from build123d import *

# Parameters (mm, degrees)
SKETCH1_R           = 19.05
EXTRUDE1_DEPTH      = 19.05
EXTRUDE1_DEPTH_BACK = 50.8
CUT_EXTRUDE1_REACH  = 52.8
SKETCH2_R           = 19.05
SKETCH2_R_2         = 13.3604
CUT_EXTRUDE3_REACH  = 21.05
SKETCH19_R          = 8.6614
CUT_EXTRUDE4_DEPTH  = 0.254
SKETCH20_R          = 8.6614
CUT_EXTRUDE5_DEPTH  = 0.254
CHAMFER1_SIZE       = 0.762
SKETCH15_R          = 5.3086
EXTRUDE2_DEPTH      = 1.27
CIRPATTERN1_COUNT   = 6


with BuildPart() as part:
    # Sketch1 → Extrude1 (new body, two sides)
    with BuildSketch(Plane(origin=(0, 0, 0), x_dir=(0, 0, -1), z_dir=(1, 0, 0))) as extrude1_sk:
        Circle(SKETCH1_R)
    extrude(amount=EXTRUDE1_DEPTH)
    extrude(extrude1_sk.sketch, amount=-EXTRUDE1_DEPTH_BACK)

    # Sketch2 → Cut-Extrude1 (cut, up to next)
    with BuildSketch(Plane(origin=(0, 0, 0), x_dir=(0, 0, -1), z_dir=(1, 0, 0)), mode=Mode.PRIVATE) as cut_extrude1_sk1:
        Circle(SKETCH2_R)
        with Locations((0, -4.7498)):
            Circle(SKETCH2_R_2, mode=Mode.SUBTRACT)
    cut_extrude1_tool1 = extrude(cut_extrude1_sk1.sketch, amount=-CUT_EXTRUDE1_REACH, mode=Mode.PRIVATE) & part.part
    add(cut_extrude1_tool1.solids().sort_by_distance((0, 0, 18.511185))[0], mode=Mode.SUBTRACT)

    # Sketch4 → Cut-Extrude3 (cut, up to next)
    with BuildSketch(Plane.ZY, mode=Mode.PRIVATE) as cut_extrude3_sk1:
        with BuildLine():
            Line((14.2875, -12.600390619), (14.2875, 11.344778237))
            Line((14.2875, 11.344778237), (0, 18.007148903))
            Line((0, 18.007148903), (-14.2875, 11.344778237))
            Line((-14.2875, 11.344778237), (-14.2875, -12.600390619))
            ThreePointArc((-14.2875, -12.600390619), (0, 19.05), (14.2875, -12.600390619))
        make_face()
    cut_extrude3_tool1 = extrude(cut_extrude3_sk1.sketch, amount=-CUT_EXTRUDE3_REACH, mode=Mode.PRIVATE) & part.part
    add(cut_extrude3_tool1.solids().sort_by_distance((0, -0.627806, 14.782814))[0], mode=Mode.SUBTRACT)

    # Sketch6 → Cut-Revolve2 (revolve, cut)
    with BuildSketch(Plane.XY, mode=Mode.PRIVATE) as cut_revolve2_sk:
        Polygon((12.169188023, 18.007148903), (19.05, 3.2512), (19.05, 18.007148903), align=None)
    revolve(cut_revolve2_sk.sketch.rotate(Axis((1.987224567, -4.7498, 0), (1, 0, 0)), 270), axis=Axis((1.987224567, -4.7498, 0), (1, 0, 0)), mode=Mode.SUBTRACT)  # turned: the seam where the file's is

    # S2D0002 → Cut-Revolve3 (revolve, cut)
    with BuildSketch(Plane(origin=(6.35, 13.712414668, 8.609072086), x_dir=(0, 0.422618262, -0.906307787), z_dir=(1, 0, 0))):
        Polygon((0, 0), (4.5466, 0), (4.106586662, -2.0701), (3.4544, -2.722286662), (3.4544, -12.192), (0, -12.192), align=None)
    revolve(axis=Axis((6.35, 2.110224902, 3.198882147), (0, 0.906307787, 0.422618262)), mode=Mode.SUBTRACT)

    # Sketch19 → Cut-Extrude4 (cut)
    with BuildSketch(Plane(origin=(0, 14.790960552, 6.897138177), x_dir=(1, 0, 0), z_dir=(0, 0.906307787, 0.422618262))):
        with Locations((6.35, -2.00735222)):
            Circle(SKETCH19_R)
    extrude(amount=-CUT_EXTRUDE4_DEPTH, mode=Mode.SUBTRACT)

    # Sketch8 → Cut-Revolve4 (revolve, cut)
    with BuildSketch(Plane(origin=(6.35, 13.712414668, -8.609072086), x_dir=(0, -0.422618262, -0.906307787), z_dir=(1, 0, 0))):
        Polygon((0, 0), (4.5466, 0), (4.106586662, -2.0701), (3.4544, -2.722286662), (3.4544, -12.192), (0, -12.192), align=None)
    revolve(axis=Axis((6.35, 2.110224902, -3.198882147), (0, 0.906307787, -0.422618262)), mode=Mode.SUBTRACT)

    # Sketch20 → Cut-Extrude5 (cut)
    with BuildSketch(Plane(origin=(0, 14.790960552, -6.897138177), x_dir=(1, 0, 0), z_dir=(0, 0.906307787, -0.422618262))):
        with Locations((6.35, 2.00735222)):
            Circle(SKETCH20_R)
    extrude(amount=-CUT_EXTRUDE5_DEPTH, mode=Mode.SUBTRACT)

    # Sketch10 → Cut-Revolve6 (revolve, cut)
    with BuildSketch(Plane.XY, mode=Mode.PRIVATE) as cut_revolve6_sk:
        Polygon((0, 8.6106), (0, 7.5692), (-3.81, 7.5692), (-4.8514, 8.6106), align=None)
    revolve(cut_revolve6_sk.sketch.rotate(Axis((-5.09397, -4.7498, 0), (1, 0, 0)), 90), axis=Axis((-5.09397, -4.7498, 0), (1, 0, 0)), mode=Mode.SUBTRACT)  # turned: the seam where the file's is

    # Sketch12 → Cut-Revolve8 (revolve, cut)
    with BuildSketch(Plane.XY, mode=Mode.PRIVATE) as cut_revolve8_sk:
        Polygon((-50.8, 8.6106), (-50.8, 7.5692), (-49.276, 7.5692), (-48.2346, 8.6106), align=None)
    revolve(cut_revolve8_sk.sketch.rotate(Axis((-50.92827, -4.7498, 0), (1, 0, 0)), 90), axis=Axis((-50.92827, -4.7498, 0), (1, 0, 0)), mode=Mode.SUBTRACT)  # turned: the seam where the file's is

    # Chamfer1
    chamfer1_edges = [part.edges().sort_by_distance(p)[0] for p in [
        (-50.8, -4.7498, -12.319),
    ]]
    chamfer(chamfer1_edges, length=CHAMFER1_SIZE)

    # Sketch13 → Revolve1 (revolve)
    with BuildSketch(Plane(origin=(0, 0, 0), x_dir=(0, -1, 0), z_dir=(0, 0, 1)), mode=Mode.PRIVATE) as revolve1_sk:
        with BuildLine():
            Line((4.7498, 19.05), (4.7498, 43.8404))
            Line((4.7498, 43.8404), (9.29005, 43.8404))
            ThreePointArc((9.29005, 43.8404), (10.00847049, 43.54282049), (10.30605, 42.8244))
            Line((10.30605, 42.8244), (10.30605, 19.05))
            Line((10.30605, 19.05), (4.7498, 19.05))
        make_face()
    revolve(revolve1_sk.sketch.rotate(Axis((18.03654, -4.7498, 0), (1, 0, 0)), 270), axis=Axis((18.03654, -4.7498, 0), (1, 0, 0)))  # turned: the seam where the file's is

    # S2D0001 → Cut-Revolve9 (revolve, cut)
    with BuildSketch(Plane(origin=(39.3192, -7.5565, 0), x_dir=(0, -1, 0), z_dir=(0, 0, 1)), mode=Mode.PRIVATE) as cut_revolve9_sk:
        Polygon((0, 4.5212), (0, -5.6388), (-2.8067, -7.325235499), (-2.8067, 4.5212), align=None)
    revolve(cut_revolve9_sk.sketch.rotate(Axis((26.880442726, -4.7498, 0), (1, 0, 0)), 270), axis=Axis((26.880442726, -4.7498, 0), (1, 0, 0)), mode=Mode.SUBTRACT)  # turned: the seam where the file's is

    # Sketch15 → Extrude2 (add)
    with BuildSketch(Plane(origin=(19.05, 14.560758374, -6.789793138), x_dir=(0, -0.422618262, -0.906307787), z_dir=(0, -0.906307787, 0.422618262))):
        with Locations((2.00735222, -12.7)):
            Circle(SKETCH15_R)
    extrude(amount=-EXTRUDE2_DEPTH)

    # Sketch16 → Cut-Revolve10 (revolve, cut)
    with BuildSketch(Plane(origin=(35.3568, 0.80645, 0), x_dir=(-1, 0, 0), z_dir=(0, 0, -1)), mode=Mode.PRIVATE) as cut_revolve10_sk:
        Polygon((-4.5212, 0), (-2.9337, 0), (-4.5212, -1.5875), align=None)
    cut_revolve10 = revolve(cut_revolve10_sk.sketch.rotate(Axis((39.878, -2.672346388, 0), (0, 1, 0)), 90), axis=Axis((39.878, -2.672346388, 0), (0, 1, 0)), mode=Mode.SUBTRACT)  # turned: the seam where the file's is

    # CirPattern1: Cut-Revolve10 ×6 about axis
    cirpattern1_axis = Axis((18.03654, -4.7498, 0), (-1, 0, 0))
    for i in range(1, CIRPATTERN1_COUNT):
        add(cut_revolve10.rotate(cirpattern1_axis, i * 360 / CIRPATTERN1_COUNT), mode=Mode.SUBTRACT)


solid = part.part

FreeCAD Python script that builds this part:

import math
import FreeCAD as App
import Part
import Sketcher
Q = App.Units.Quantity


def edges_at(feature, points):
    """Names of the edges that pass closest to the given points."""
    edges = feature.Shape.Edges
    near = lambda p: min(range(len(edges)), key=lambda i: edges[i].distToShape(Part.Vertex(*p))[0])
    return sorted({f"Edge{near(p) + 1}" for p in points})


def add_polygon(sketch, points):
    """Adds a closed chain of lines whose ends are joined by coincident constraints."""
    first, n = sketch.GeometryCount, len(points)
    for a, b in zip(points, points[1:] + points[:1]):
        sketch.addGeometry(Part.LineSegment(App.Vector(*a, 0), App.Vector(*b, 0)), False)
    for i in range(n):
        sketch.addConstraint(Sketcher.Constraint("Coincident", first + i, 2, first + (i + 1) % n, 1))

doc = App.newDocument("Part")
params = doc.addObject("Spreadsheet::Sheet", "Params")
for row, (alias, value) in enumerate([
    ("sketch1_diameter", "1.5 in"),
    ("pad1_length", "0.75 in"),
    ("pad1_length2", "2 in"),
    ("sketch2_diameter", "1.5 in"),
    ("sketch2_diameter2", "1.052 in"),
    ("sketch3_radius", "0.75 in"),
    ("groove_angle", "360 deg"),
    ("sketch5_length", "0.48 in"),
    ("sketch5_length2", "0.179 in"),
    ("sketch5_length3", "0.136 in"),
    ("groove2_angle", "360 deg"),
    ("sketch6_diameter", "0.682 in"),
    ("pocket3_length", "0.01 in"),
    ("sketch7_length", "0.48 in"),
    ("sketch7_length2", "0.179 in"),
    ("sketch7_length3", "0.136 in"),
    ("groove3_angle", "360 deg"),
    ("sketch8_diameter", "0.682 in"),
    ("pocket4_length", "0.01 in"),
    ("sketch9_width", "0.15 in"),
    ("sketch9_width2", "0.191 in"),
    ("groove4_angle", "360 deg"),
    ("sketch10_width", "0.06 in"),
    ("sketch10_width2", "0.101 in"),
    ("groove5_angle", "360 deg"),
    ("chamfer_size", "0.03 in"),
    ("sketch11_radius", "0.04 in"),
    ("sketch11_width", "0.976 in"),
    ("sketch11_height", "0.21875 in"),
    ("revolution_angle", "360 deg"),
    ("sketch12_width", "0.4 in"),
    ("groove6_angle", "360 deg"),
    ("sketch13_diameter", "0.418 in"),
    ("pad2_length", "0.05 in"),
    ("sketch14_width", "0.0625 in"),
    ("groove7_angle", "360 deg"),
], start=1):
    params.set(f"A{row}", alias)
    params.set(f"B{row}", "=" + value)
    params.setAlias(f"B{row}", alias)

body = doc.addObject("PartDesign::Body", "Body")

# Sketch on YZ plane
sketch1 = body.newObject("Sketcher::SketchObject", "Sketch")
sketch1.AttachmentSupport = (doc.getObject("YZ_Plane"), [""])
sketch1.MapMode = "FlatFace"
sketch1.addGeometry(Part.Circle(App.Vector(0, 0, 0), App.Vector(0, 0, 1), 19), False)
sketch1.addConstraint([
    Sketcher.Constraint("Coincident", 0, 3, -1, 1),
    Sketcher.Constraint("Diameter", 0, Q("1.5 in")),
])
sketch1.setExpression("Constraints[1]", "Params.sketch1_diameter")
pad1 = body.newObject("PartDesign::Pad", "Pad")
pad1.Profile = sketch1
pad1.Type = "TwoLengths"
pad1.setExpression("Length", "Params.pad1_length")
pad1.setExpression("Length2", "Params.pad1_length2")

# Sketch on YZ plane
sketch2 = body.newObject("Sketcher::SketchObject", "Sketch001")
sketch2.AttachmentSupport = (doc.getObject("YZ_Plane"), [""])
sketch2.MapMode = "FlatFace"
sketch2.addGeometry([
    Part.Circle(App.Vector(0, 0, 0), App.Vector(0, 0, 1), 19),
    Part.Circle(App.Vector(-5, 0, 0), App.Vector(0, 0, 1), 13),
], False)
sketch2.addConstraint([
    Sketcher.Constraint("Coincident", 0, 3, -1, 1),
    Sketcher.Constraint("PointOnObject", 1, 3, -1),
    Sketcher.Constraint("Diameter", 0, Q("1.5 in")),
    Sketcher.Constraint("Diameter", 1, Q("1.052 in")),
    Sketcher.Constraint("DistanceX", 1, 3, -1, 1, Q("0.187 in")),
])
sketch2.setExpression("Constraints[2]", "Params.sketch2_diameter")
sketch2.setExpression("Constraints[3]", "Params.sketch2_diameter2")
pocket1 = body.newObject("PartDesign::Pocket", "Pocket")
pocket1.Profile = sketch2
pocket1.Type = "UpToFirst"

# Sketch on YZ plane
sketch3 = body.newObject("Sketcher::SketchObject", "Sketch002")
sketch3.AttachmentSupport = (doc.getObject("YZ_Plane"), [""])
sketch3.MapMode = "FlatFace"
sketch3.addGeometry([
    Part.LineSegment(App.Vector(11, 14, 0), App.Vector(-13, 14, 0)),  # 0
    Part.ArcOfCircle(Part.Circle(App.Vector(0, 0, 0), App.Vector(0, 0, 1), 19), math.radians(-131), math.radians(131)),  # 1
    Part.LineSegment(App.Vector(-13, -14, 0), App.Vector(11, -14, 0)),  # 2
    Part.LineSegment(App.Vector(11, -14, 0), App.Vector(18, 0, 0)),  # 3
    Part.LineSegment(App.Vector(18, 0, 0), App.Vector(11, 14, 0)),  # 4
], False)
sketch3.addConstraint([
    Sketcher.Constraint("Coincident", 0, 2, 1, 2),
    Sketcher.Constraint("Coincident", 1, 1, 2, 1),
    Sketcher.Constraint("Coincident", 2, 2, 3, 1),
    Sketcher.Constraint("Coincident", 3, 2, 4, 1),
    Sketcher.Constraint("Coincident", 4, 2, 0, 1),
    Sketcher.Constraint("Horizontal", 0),
    Sketcher.Constraint("Horizontal", 2),
    Sketcher.Constraint("Coincident", 1, 3, -1, 1),
    Sketcher.Constraint("Symmetric", 2, 2, 4, 2, -1),
    Sketcher.Constraint("PointOnObject", 3, 2, -1),
    Sketcher.Constraint("Radius", 1, Q("0.75 in")),
    Sketcher.Constraint("Angle", 3, Q("65 deg")),
    Sketcher.Constraint("DistanceY", -1, 1, 0, 2, Q("0.5625 in")),
    Sketcher.Constraint("DistanceX", 0, 2, 0, 1, 23.945169),
])
sketch3.setExpression("Constraints[10]", "Params.sketch3_radius")
pocket2 = body.newObject("PartDesign::Pocket", "Pocket001")
pocket2.Profile = sketch3
pocket2.Type = "UpToFirst"
pocket2.Reversed = True

# Sketch on XY plane
sketch4 = body.newObject("Sketcher::SketchObject", "Sketch003")
sketch4.AttachmentSupport = (doc.getObject("XY_Plane"), [""])
sketch4.MapMode = "FlatFace"
add_polygon(sketch4, [(12, 18), (19, 3), (19, 18)])  # lines 0-2
sketch4.addGeometry(Part.LineSegment(App.Vector(12, -5, 0), App.Vector(19, -5, 0)), True)  # axis
sketch4.addConstraint([
    Sketcher.Constraint("Vertical", 1),
    Sketcher.Constraint("Horizontal", 2),
    Sketcher.Constraint("Horizontal", 3),
    Sketcher.Constraint("Vertical", 2, 2, 3, 1),
    Sketcher.Constraint("Vertical", 1, 2, 3, 2),
    Sketcher.Constraint("Angle", 0, Q("-65 deg")),
    Sketcher.Constraint("DistanceX", -1, 1, 0, 2, Q("0.75 in")),
    Sketcher.Constraint("DistanceY", -1, 1, 0, 2, Q("0.128 in")),
    Sketcher.Constraint("DistanceY", 3, 1, -1, 1, Q("0.187 in")),
    Sketcher.Constraint("DistanceX", 2, 2, 2, 1, 6.880812),
])
groove = body.newObject("PartDesign::Groove", "Groove")
groove.Profile = sketch4
groove.ReferenceAxis = (sketch4, ["Axis0"])
groove.setExpression("Angle", "Params.groove_angle")

# Sketch on YZ plane
sketch5 = body.newObject("Sketcher::SketchObject", "Sketch004")
sketch5.AttachmentSupport = (doc.getObject("YZ_Plane"), [""])
sketch5.MapMode = "FlatFace"
sketch5.AttachmentOffset = App.Placement(App.Vector(0, 0, 0.25 * 25.4), App.Rotation())
add_polygon(sketch5, [(15.6, 4.5), (13.7, 8.6), (2.7, 3.5), (4.1, 0.3), (12.7, 4.3), (13.6, 4)])  # lines 0-5
sketch5.addGeometry(Part.LineSegment(App.Vector(2.7, 3.5, 0), App.Vector(13.7, 8.6, 0)), True)  # axis
sketch5.addConstraint([
    Sketcher.Constraint("Coincident", 6, 1, 1, 2),
    Sketcher.Constraint("Coincident", 6, 2, 0, 2),
    Sketcher.Constraint("Perpendicular", 0, 1),
    Sketcher.Constraint("Perpendicular", 1, 2),
    Sketcher.Constraint("Perpendicular", 2, 3),
    Sketcher.Constraint("Angle", 0, Q("115 deg")),
    Sketcher.Constraint("Angle", 4, Q("-20 deg")),
    Sketcher.Constraint("Angle", 5, Q("13 deg")),
    Sketcher.Constraint("Distance", 1, Q("0.48 in")),
    Sketcher.Constraint("Distance", 0, Q("0.179 in")),
    Sketcher.Constraint("Distance", 2, Q("0.136 in")),
    Sketcher.Constraint("DistanceX", -1, 1, 3, 2, Q("0.5001999 in")),
    Sketcher.Constraint("Distance", 4, 0.922331),
    Sketcher.Constraint("DistanceY", -1, 1, 1, 2, 3.45651),
])
sketch5.setExpression("Constraints[14]", "Params.sketch5_length")
sketch5.setExpression("Constraints[15]", "Params.sketch5_length2")
sketch5.setExpression("Constraints[16]", "Params.sketch5_length3")
groove2 = body.newObject("PartDesign::Groove", "Groove001")
groove2.Profile = sketch5
groove2.ReferenceAxis = (sketch5, ["Axis0"])
groove2.setExpression("Angle", "Params.groove2_angle")

# Sketch on an angled plane
sketch6 = body.newObject("Sketcher::SketchObject", "Sketch005")
sketch6.Placement = App.Placement(App.Vector(0, 14.790961, 6.897138), App.Rotation(App.Vector(1, 0, 0), App.Vector(0, 0.422618262, -0.906307787), App.Vector(0, 0.906307787, 0.422618262), "ZXY"))
sketch6.addGeometry(Part.Circle(App.Vector(6, -2, 0), App.Vector(0, 0, 1), 9), False)
sketch6.addConstraint([
    Sketcher.Constraint("Diameter", 0, Q("0.682 in")),
    Sketcher.Constraint("DistanceX", -1, 1, 0, 3, Q("0.25 in")),
    Sketcher.Constraint("DistanceY", 0, 3, -1, 1, 2.007352),
])
sketch6.setExpression("Constraints[0]", "Params.sketch6_diameter")
pocket3 = body.newObject("PartDesign::Pocket", "Pocket002")
pocket3.Profile = sketch6
pocket3.setExpression("Length", "Params.pocket3_length")

# Sketch on YZ plane
sketch7 = body.newObject("Sketcher::SketchObject", "Sketch006")
sketch7.AttachmentSupport = (doc.getObject("YZ_Plane"), [""])
sketch7.MapMode = "FlatFace"
sketch7.AttachmentOffset = App.Placement(App.Vector(0, 0, 0.25 * 25.4), App.Rotation())
add_polygon(sketch7, [(11.8, -12.7), (13.7, -8.6), (2.7, -3.5), (1.2, -6.6), (9.8, -10.6), (10.1, -11.5)])  # lines 0-5
sketch7.addGeometry(Part.LineSegment(App.Vector(2.7, -3.5, 0), App.Vector(13.7, -8.6, 0)), True)  # axis
sketch7.addConstraint([
    Sketcher.Constraint("Coincident", 6, 1, 1, 2),
    Sketcher.Constraint("Coincident", 6, 2, 0, 2),
    Sketcher.Constraint("Perpendicular", 0, 1),
    Sketcher.Constraint("Perpendicular", 1, 2),
    Sketcher.Constraint("Perpendicular", 2, 3),
    Sketcher.Constraint("Angle", 0, Q("65 deg")),
    Sketcher.Constraint("Angle", 4, Q("-70 deg")),
    Sketcher.Constraint("Angle", 5, Q("-37 deg")),
    Sketcher.Constraint("Distance", 1, Q("0.48 in")),
    Sketcher.Constraint("Distance", 0, Q("0.179 in")),
    Sketcher.Constraint("Distance", 2, Q("0.136 in")),
    Sketcher.Constraint("Distance", 4, 0.922331),
    Sketcher.Constraint("DistanceX", -1, 1, 1, 2, 2.66271),
    Sketcher.Constraint("DistanceY", 1, 2, -1, 1, 3.45651),
])
sketch7.setExpression("Constraints[14]", "Params.sketch7_length")
sketch7.setExpression("Constraints[15]", "Params.sketch7_length2")
sketch7.setExpression("Constraints[16]", "Params.sketch7_length3")
groove3 = body.newObject("PartDesign::Groove", "Groove002")
groove3.Profile = sketch7
groove3.ReferenceAxis = (sketch7, ["Axis0"])
groove3.setExpression("Angle", "Params.groove3_angle")

# Sketch on an angled plane
sketch8 = body.newObject("Sketcher::SketchObject", "Sketch007")
sketch8.Placement = App.Placement(App.Vector(0, 14.790961, -6.897138), App.Rotation(App.Vector(1, 0, 0), App.Vector(0, -0.422618262, -0.906307787), App.Vector(0, 0.906307787, -0.422618262), "ZXY"))
sketch8.addGeometry(Part.Circle(App.Vector(6, 2, 0), App.Vector(0, 0, 1), 9), False)
sketch8.addConstraint([
    Sketcher.Constraint("Diameter", 0, Q("0.682 in")),
    Sketcher.Constraint("DistanceX", -1, 1, 0, 3, Q("0.25 in")),
    Sketcher.Constraint("DistanceY", -1, 1, 0, 3, 2.007352),
])
sketch8.setExpression("Constraints[0]", "Params.sketch8_diameter")
pocket4 = body.newObject("PartDesign::Pocket", "Pocket003")
pocket4.Profile = sketch8
pocket4.setExpression("Length", "Params.pocket4_length")

# Sketch on XY plane
sketch9 = body.newObject("Sketcher::SketchObject", "Sketch008")
sketch9.AttachmentSupport = (doc.getObject("XY_Plane"), [""])
sketch9.MapMode = "FlatFace"
add_polygon(sketch9, [(0, 7.6), (0, 8.6), (-4.9, 8.6), (-3.8, 7.6)])  # lines 0-3
sketch9.addGeometry(Part.LineSegment(App.Vector(-4.9, -4.7, 0), App.Vector(0, -4.7, 0)), True)  # axis
sketch9.addConstraint([
    Sketcher.Constraint("Vertical", 0),
    Sketcher.Constraint("Horizontal", 1),
    Sketcher.Constraint("Horizontal", 3),
    Sketcher.Constraint("Horizontal", 4),
    Sketcher.Constraint("PointOnObject", 0, 2, -2),
    Sketcher.Constraint("PointOnObject", 4, 2, -2),
    Sketcher.Constraint("Vertical", 1, 2, 4, 1),
    Sketcher.Constraint("Angle", 2, Q("-45 deg")),
    Sketcher.Constraint("DistanceX", 3, 1, 3, 2, Q("0.15 in")),
    Sketcher.Constraint("DistanceX", 1, 2, 1, 1, Q("0.191 in")),
    Sketcher.Constraint("DistanceY", -1, 1, 0, 2, Q("0.339 in")),
    Sketcher.Constraint("DistanceY", 4, 1, -1, 1, Q("0.187 in")),
])
sketch9.setExpression("Constraints[12]", "Params.sketch9_width")
sketch9.setExpression("Constraints[13]", "Params.sketch9_width2")
groove4 = body.newObject("PartDesign::Groove", "Groove003")
groove4.Profile = sketch9
groove4.ReferenceAxis = (sketch9, ["Axis0"])
groove4.setExpression("Angle", "Params.groove4_angle")

# Sketch on XY plane
sketch10 = body.newObject("Sketcher::SketchObject", "Sketch009")
sketch10.AttachmentSupport = (doc.getObject("XY_Plane"), [""])
sketch10.MapMode = "FlatFace"
add_polygon(sketch10, [(-50.8, 8.6), (-50.8, 7.6), (-49.3, 7.6), (-48.2, 8.6)])  # lines 0-3
sketch10.addGeometry(Part.LineSegment(App.Vector(-50.8, -4.7, 0), App.Vector(-48.2, -4.7, 0)), True)  # axis
sketch10.addConstraint([
    Sketcher.Constraint("Vertical", 0),
    Sketcher.Constraint("Horizontal", 1),
    Sketcher.Constraint("Horizontal", 3),
    Sketcher.Constraint("Horizontal", 4),
    Sketcher.Constraint("Vertical", 3, 2, 4, 1),
    Sketcher.Constraint("Vertical", 2, 2, 4, 2),
    Sketcher.Constraint("DistanceX", 0, 2, -1, 1, Q("2 in")),
    Sketcher.Constraint("Angle", 2, Q("45 deg")),
    Sketcher.Constraint("DistanceX", 1, 1, 1, 2, Q("0.06 in")),
    Sketcher.Constraint("DistanceX", 3, 2, 3, 1, Q("0.101 in")),
    Sketcher.Constraint("DistanceY", -1, 1, 0, 2, Q("0.298 in")),
    Sketcher.Constraint("DistanceY", 4, 1, -1, 1, Q("0.187 in")),
])
sketch10.setExpression("Constraints[12]", "Params.sketch10_width")
sketch10.setExpression("Constraints[13]", "Params.sketch10_width2")
groove5 = body.newObject("PartDesign::Groove", "Groove004")
groove5.Profile = sketch10
groove5.ReferenceAxis = (sketch10, ["Axis0"])
groove5.setExpression("Angle", "Params.groove5_angle")
doc.recompute()

chamfer = body.newObject("PartDesign::Chamfer", "Chamfer")
chamfer.Base = (groove5, edges_at(groove5, [(-50.8, -4.75, -12.319)]))
chamfer.setExpression("Size", "Params.chamfer_size")

# Sketch on XY plane
sketch11 = body.newObject("Sketcher::SketchObject", "Sketch010")
sketch11.AttachmentSupport = (doc.getObject("XY_Plane"), [""])
sketch11.MapMode = "FlatFace"
sketch11.addGeometry([
    Part.LineSegment(App.Vector(43.8, -4.7, 0), App.Vector(19.1, -4.7, 0)),  # 0
    Part.LineSegment(App.Vector(19.1, -4.7, 0), App.Vector(19.1, -10.3, 0)),  # 1
    Part.LineSegment(App.Vector(19.1, -10.3, 0), App.Vector(42.8, -10.3, 0)),  # 2
    Part.ArcOfCircle(Part.Circle(App.Vector(42.8, -9.3, 0), App.Vector(0, 0, 1), 1), math.radians(-90), math.radians(0)),  # 3
    Part.LineSegment(App.Vector(43.8, -9.3, 0), App.Vector(43.8, -4.7, 0)),  # 4
], False)
sketch11.addGeometry(Part.LineSegment(App.Vector(19.1, -4.7, 0), App.Vector(43.8, -4.7, 0)), True)  # axis
sketch11.addConstraint([
    Sketcher.Constraint("Coincident", 0, 2, 1, 1),
    Sketcher.Constraint("Coincident", 1, 2, 2, 1),
    Sketcher.Constraint("Tangent", 2, 2, 3, 1),
    Sketcher.Constraint("Tangent", 3, 2, 4, 1),
    Sketcher.Constraint("Coincident", 4, 2, 0, 1),
    Sketcher.Constraint("Horizontal", 0),
    Sketcher.Constraint("Vertical", 1),
    Sketcher.Constraint("Horizontal", 2),
    Sketcher.Constraint("Vertical", 4),
    Sketcher.Constraint("Horizontal", 5),
    Sketcher.Constraint("Coincident", 5, 1, 0, 2),
    Sketcher.Constraint("Vertical", 3, 2, 5, 2),
    Sketcher.Constraint("Radius", 3, Q("0.04 in")),
    Sketcher.Constraint("DistanceX", 0, 2, 0, 1, Q("0.976 in")),
    Sketcher.Constraint("DistanceY", 1, 2, 1, 1, Q("0.21875 in")),
    Sketcher.Constraint("DistanceX", -1, 1, 0, 2, Q("0.75 in")),
    Sketcher.Constraint("DistanceY", 0, 2, -1, 1, Q("0.187 in")),
])
sketch11.setExpression("Constraints[12]", "Params.sketch11_radius")
sketch11.setExpression("Constraints[13]", "Params.sketch11_width")
sketch11.setExpression("Constraints[14]", "Params.sketch11_height")
revolution = body.newObject("PartDesign::Revolution", "Revolution")
revolution.Profile = sketch11
revolution.ReferenceAxis = (sketch11, ["Axis0"])
revolution.setExpression("Angle", "Params.revolution_angle")

# Sketch on XY plane
sketch12 = body.newObject("Sketcher::SketchObject", "Sketch011")
sketch12.AttachmentSupport = (doc.getObject("XY_Plane"), [""])
sketch12.MapMode = "FlatFace"
add_polygon(sketch12, [(33.7, -7.6), (43.8, -7.6), (43.8, -4.7), (32, -4.7)])  # lines 0-3
sketch12.addGeometry(Part.LineSegment(App.Vector(32, -4.7, 0), App.Vector(43.8, -4.7, 0)), True)  # axis
sketch12.addConstraint([
    Sketcher.Constraint("Horizontal", 0),
    Sketcher.Constraint("Vertical", 1),
    Sketcher.Constraint("Horizontal", 2),
    Sketcher.Constraint("Horizontal", 4),
    Sketcher.Constraint("Coincident", 4, 1, 2, 2),
    Sketcher.Constraint("Vertical", 0, 2, 4, 2),
    Sketcher.Constraint("DistanceX", 0, 1, 0, 2, Q("0.4 in")),
    Sketcher.Constraint("Angle", 3, Q("-59 deg")),
    Sketcher.Constraint("DistanceY", 1, 1, 1, 2, Q("0.1105 in")),
    Sketcher.Constraint("DistanceX", -1, 1, 0, 2, Q("1.726 in")),
    Sketcher.Constraint("DistanceY", 1, 2, -1, 1, Q("0.187 in")),
])
sketch12.setExpression("Constraints[10]", "Params.sketch12_width")
groove6 = body.newObject("PartDesign::Groove", "Groove005")
groove6.Profile = sketch12
groove6.ReferenceAxis = (sketch12, ["Axis0"])
groove6.setExpression("Angle", "Params.groove6_angle")

# Sketch on an angled plane
sketch13 = body.newObject("Sketcher::SketchObject", "Sketch012")
sketch13.Placement = App.Placement(App.Vector(19.05, 14.560758, -6.789793), App.Rotation(App.Vector(0, -0.422618262, -0.906307787), App.Vector(1, 0, 0), App.Vector(0, -0.906307787, 0.422618262), "ZXY"))
sketch13.addGeometry(Part.Circle(App.Vector(2, -13, 0), App.Vector(0, 0, 1), 5), False)
sketch13.addConstraint([
    Sketcher.Constraint("Diameter", 0, Q("0.418 in")),
    Sketcher.Constraint("DistanceY", 0, 3, -1, 1, Q("0.5 in")),
    Sketcher.Constraint("DistanceX", -1, 1, 0, 3, 2.007352),
])
sketch13.setExpression("Constraints[0]", "Params.sketch13_diameter")
pad2 = body.newObject("PartDesign::Pad", "Pad001")
pad2.Profile = sketch13
pad2.setExpression("Length", "Params.pad2_length")
pad2.Reversed = True

# Sketch on XY plane
sketch14 = body.newObject("Sketcher::SketchObject", "Sketch013")
sketch14.AttachmentSupport = (doc.getObject("XY_Plane"), [""])
sketch14.MapMode = "FlatFace"
add_polygon(sketch14, [(38.3, 0.8), (39.9, 0.8), (39.9, -0.8)])  # lines 0-2
sketch14.addGeometry(Part.LineSegment(App.Vector(39.9, -0.8, 0), App.Vector(39.9, 0.8, 0)), True)  # axis
sketch14.addConstraint([
    Sketcher.Constraint("Horizontal", 0),
    Sketcher.Constraint("Vertical", 1),
    Sketcher.Constraint("Vertical", 3),
    Sketcher.Constraint("Coincident", 3, 1, 1, 2),
    Sketcher.Constraint("Horizontal", 2, 2, 3, 2),
    Sketcher.Constraint("Equal", 0, 1),
    Sketcher.Constraint("DistanceX", 0, 1, 0, 2, Q("0.0625 in")),
    Sketcher.Constraint("DistanceX", -1, 1, 0, 2, Q("1.57 in")),
    Sketcher.Constraint("DistanceY", -1, 1, 0, 2, 0.80645),
])
sketch14.setExpression("Constraints[9]", "Params.sketch14_width")
groove7 = body.newObject("PartDesign::Groove", "Groove006")
groove7.Profile = sketch14
groove7.ReferenceAxis = (sketch14, ["Axis0"])
groove7.setExpression("Angle", "Params.groove7_angle")
doc.recompute()

datumline = body.newObject("PartDesign::Line", "DatumLine")
datumline.Placement = App.Placement(App.Vector(0, -4.7498, 0), App.Rotation(App.Vector(0, 0, 1), App.Vector(-1, 0, 0)))
polarpattern = body.newObject("PartDesign::PolarPattern", "PolarPattern")
polarpattern.Originals = [groove7]
polarpattern.Axis = (datumline, [""])
polarpattern.Angle = 360
polarpattern.Occurrences = 6
body.Tip = polarpattern

doc.recompute()
